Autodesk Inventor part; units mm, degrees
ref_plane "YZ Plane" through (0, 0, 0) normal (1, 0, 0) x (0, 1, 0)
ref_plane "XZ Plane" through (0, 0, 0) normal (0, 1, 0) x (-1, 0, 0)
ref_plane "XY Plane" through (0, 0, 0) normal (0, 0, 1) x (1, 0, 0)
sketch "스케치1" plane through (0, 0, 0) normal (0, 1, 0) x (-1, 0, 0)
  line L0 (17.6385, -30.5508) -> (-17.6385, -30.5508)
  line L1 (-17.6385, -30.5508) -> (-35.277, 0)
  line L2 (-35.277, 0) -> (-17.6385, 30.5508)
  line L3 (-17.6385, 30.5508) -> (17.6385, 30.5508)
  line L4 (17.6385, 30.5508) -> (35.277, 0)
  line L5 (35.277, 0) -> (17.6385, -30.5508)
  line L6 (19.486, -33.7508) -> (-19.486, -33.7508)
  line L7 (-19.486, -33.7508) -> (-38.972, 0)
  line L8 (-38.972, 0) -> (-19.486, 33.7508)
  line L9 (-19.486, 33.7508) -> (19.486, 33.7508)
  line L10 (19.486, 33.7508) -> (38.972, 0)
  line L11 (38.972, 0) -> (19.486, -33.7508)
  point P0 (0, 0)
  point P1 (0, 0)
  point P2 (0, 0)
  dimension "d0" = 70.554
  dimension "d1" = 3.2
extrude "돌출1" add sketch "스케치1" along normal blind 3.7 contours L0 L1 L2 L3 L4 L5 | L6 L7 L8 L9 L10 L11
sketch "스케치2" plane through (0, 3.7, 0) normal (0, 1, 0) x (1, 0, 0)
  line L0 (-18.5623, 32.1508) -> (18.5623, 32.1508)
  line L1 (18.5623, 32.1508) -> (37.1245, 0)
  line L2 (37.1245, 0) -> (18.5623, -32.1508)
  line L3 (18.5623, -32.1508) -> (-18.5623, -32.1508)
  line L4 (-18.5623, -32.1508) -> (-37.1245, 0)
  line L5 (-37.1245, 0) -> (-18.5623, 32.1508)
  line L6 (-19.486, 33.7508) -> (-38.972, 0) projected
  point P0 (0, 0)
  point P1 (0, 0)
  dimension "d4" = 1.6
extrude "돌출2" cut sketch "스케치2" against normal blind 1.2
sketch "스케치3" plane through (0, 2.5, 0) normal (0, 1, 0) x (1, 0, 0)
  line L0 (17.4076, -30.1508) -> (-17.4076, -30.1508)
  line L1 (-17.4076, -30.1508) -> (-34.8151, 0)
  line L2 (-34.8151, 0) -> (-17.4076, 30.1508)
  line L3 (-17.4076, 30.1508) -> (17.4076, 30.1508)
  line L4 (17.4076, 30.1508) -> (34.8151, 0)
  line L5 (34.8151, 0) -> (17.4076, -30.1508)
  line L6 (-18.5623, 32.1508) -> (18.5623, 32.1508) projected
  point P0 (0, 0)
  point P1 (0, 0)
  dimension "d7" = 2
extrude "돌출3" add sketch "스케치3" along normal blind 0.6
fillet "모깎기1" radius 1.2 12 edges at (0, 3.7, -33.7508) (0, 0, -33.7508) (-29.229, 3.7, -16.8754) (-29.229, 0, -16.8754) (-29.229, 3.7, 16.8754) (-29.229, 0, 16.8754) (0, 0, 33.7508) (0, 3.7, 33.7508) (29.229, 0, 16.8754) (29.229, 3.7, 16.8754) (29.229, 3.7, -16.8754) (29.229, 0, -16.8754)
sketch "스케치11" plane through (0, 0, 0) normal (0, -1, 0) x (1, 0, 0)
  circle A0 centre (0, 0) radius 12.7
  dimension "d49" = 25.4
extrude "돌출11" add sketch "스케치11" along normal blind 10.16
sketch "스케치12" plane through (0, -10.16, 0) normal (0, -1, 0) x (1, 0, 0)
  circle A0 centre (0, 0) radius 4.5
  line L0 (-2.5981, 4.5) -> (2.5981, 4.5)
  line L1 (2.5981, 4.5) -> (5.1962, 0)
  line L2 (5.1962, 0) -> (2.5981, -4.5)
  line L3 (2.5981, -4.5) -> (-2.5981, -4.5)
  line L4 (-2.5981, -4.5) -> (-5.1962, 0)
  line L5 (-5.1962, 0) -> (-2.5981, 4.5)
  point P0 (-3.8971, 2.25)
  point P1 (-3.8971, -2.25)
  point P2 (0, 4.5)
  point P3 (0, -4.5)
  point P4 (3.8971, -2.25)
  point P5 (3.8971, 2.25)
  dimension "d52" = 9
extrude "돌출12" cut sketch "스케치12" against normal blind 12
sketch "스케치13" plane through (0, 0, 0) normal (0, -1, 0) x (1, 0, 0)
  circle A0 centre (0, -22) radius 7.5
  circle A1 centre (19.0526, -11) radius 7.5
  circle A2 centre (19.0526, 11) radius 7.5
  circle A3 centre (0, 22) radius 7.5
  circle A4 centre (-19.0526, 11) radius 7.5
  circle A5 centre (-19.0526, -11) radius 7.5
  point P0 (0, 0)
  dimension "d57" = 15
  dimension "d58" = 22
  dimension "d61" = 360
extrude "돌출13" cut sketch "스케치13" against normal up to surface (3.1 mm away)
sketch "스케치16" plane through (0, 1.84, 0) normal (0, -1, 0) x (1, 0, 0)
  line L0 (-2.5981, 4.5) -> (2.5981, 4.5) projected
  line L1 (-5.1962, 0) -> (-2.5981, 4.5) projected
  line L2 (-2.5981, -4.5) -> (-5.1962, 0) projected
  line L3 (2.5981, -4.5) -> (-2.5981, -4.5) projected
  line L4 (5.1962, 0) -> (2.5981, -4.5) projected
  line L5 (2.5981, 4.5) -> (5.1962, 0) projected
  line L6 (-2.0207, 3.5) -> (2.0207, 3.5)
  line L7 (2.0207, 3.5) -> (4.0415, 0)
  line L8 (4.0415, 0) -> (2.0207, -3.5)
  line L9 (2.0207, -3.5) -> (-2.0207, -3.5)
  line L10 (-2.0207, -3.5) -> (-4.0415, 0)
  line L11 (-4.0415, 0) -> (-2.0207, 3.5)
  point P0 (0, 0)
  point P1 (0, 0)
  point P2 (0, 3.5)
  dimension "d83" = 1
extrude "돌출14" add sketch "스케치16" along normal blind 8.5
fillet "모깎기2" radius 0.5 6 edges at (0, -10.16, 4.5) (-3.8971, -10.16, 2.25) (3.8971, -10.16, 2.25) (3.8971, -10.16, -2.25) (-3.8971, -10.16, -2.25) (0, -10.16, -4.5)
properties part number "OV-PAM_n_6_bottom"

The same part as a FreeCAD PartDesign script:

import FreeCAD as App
import Part
import Sketcher
Q = App.Units.Quantity


def edges_at(feature, points):
    """Names of the edges that pass closest to the given points."""
    edges = feature.Shape.Edges
    near = lambda p: min(range(len(edges)), key=lambda i: edges[i].distToShape(Part.Vertex(*p))[0])
    return sorted({f"Edge{near(p) + 1}" for p in points})


def add_polygon(sketch, points):
    """Adds a closed chain of lines whose ends are joined by coincident constraints."""
    first, n = sketch.GeometryCount, len(points)
    for a, b in zip(points, points[1:] + points[:1]):
        sketch.addGeometry(Part.LineSegment(App.Vector(*a, 0), App.Vector(*b, 0)), False)
    for i in range(n):
        sketch.addConstraint(Sketcher.Constraint("Coincident", first + i, 2, first + (i + 1) % n, 1))

doc = App.newDocument("Part")
body = doc.addObject("PartDesign::Body", "Body")

# Sketch on XZ plane
sketch1 = doc.addObject("Sketcher::SketchObject", "Sketch")
body.addObject(sketch1)
sketch1.AttachmentSupport = (doc.XZ_Plane, [""])
sketch1.MapMode = "FlatFace"
add_polygon(sketch1, [(19, -34), (-19, -34), (-39, 0), (-19, 34), (19, 34), (39, 0)])  # lines 0-5
sketch1.addConstraint(Sketcher.Constraint("Horizontal", 0))
sketch1.addConstraint(Sketcher.Constraint("Horizontal", 3))
sketch1.addConstraint(Sketcher.Constraint("Symmetric", 0, 2, 3, 2, -1, 1))
sketch1.addConstraint(Sketcher.Constraint("Symmetric", 1, 2, 4, 2, -1, 1))
sketch1.addConstraint(Sketcher.Constraint("PointOnObject", 1, 2, -1))
sketch1.addConstraint(Sketcher.Constraint("Parallel", 2, 5))
sketch1.addConstraint(Sketcher.Constraint("Vertical", 0, 2, 2, 2))
sketch1.addConstraint(Sketcher.Constraint("Angle", 1, Q("120 deg")))
sketch1.addConstraint(Sketcher.Constraint("DistanceX", 0, 2, 0, 1, Q("38.972 mm")))
sketch1.addConstraint(Sketcher.Constraint("Distance", 1, Q("38.972 mm")))
pad1 = doc.addObject("PartDesign::Pad", "Pad")
body.addObject(pad1)
pad1.Profile = sketch1
pad1.Length = 3.7
pad1.Reversed = True

# Sketch on XZ plane
sketch2 = doc.addObject("Sketcher::SketchObject", "Sketch001")
body.addObject(sketch2)
sketch2.AttachmentSupport = (doc.XZ_Plane, [""])
sketch2.MapMode = "FlatFace"
sketch2.AttachmentOffset = App.Placement(App.Vector(0, 0, -3.7), App.Rotation())
add_polygon(sketch2, [(19, -32), (-19, -32), (-37, 0), (-19, 32), (19, 32), (37, 0)])  # lines 0-5
sketch2.addConstraint(Sketcher.Constraint("Horizontal", 0))
sketch2.addConstraint(Sketcher.Constraint("Horizontal", 3))
sketch2.addConstraint(Sketcher.Constraint("Symmetric", 0, 2, 3, 2, -1, 1))
sketch2.addConstraint(Sketcher.Constraint("Symmetric", 1, 2, 4, 2, -1, 1))
sketch2.addConstraint(Sketcher.Constraint("PointOnObject", 1, 2, -1))
sketch2.addConstraint(Sketcher.Constraint("Parallel", 2, 5))
sketch2.addConstraint(Sketcher.Constraint("Vertical", 0, 2, 2, 2))
sketch2.addConstraint(Sketcher.Constraint("Angle", 1, Q("120 deg")))
sketch2.addConstraint(Sketcher.Constraint("DistanceX", 0, 2, 0, 1, Q("37.1246 mm")))
sketch2.addConstraint(Sketcher.Constraint("DistanceX", 1, 2, 4, 2, Q("74.249 mm")))
pocket1 = doc.addObject("PartDesign::Pocket", "Pocket")
body.addObject(pocket1)
pocket1.Profile = sketch2
pocket1.Length = 1.2
pocket1.Reversed = True

# Sketch on XZ plane
sketch3 = doc.addObject("Sketcher::SketchObject", "Sketch002")
body.addObject(sketch3)
sketch3.AttachmentSupport = (doc.XZ_Plane, [""])
sketch3.MapMode = "FlatFace"
sketch3.AttachmentOffset = App.Placement(App.Vector(0, 0, -2.5), App.Rotation())
add_polygon(sketch3, [(-17, 30), (17, 30), (35, 0), (17, -30), (-17, -30), (-35, 0)])  # lines 0-5
sketch3.addConstraint(Sketcher.Constraint("Horizontal", 0))
sketch3.addConstraint(Sketcher.Constraint("Horizontal", 3))
sketch3.addConstraint(Sketcher.Constraint("Symmetric", 0, 2, 3, 2, -1, 1))
sketch3.addConstraint(Sketcher.Constraint("Symmetric", 1, 2, 4, 2, -1, 1))
sketch3.addConstraint(Sketcher.Constraint("PointOnObject", 1, 2, -1))
sketch3.addConstraint(Sketcher.Constraint("Parallel", 2, 5))
sketch3.addConstraint(Sketcher.Constraint("Vertical", 0, 2, 2, 2))
sketch3.addConstraint(Sketcher.Constraint("Angle", 1, Q("-60 deg")))
sketch3.addConstraint(Sketcher.Constraint("Distance", 1, Q("34.815 mm")))
sketch3.addConstraint(Sketcher.Constraint("DistanceX", 0, 1, 0, 2, Q("34.8152 mm")))
pad2 = doc.addObject("PartDesign::Pad", "Pad001")
body.addObject(pad2)
pad2.Profile = sketch3
pad2.Length = 0.6
pad2.Reversed = True
doc.recompute()

fillet = doc.addObject("PartDesign::Fillet", "Fillet")
body.addObject(fillet)
fillet.Base = (pad2, edges_at(pad2, [
    (0, 3.7, -33.751),
    (0, 0, -33.751),
    (-29.229, 3.7, -16.875),
    (-29.229, 0, -16.875),
    (-29.229, 3.7, 16.875),
    (-29.229, 0, 16.875),
    (0, 0, 33.751),
    (0, 3.7, 33.751),
    (29.229, 0, 16.875),
    (29.229, 3.7, 16.875),
    (29.229, 3.7, -16.875),
    (29.229, 0, -16.875),
]))
fillet.Radius = 1.2

# Sketch on XZ plane
sketch4 = doc.addObject("Sketcher::SketchObject", "Sketch003")
body.addObject(sketch4)
sketch4.AttachmentSupport = (doc.XZ_Plane, [""])
sketch4.MapMode = "FlatFace"
sketch4.addGeometry(Part.Circle(App.Vector(0, 0, 0), App.Vector(0, 0, 1), 13), False)
sketch4.addConstraint(Sketcher.Constraint("Coincident", 0, 3, -1, 1))
sketch4.addConstraint(Sketcher.Constraint("Diameter", 0, Q("25.4 mm")))
pad3 = doc.addObject("PartDesign::Pad", "Pad002")
body.addObject(pad3)
pad3.Profile = sketch4
pad3.Length = 10.16

# Sketch on XZ plane
sketch5 = doc.addObject("Sketcher::SketchObject", "Sketch004")
body.addObject(sketch5)
sketch5.AttachmentSupport = (doc.XZ_Plane, [""])
sketch5.MapMode = "FlatFace"
sketch5.AttachmentOffset = App.Placement(App.Vector(0, 0, 10.16), App.Rotation())
add_polygon(sketch5, [(5, 0), (3, 4), (-3, 4), (-5, 0), (-3, -4), (3, -4)])  # lines 0-5
sketch5.addConstraint(Sketcher.Constraint("Horizontal", 1))
sketch5.addConstraint(Sketcher.Constraint("Horizontal", 4))
sketch5.addConstraint(Sketcher.Constraint("Symmetric", 0, 2, 3, 2, -1, 1))
sketch5.addConstraint(Sketcher.Constraint("Symmetric", 2, 2, 5, 2, -1, 1))
sketch5.addConstraint(Sketcher.Constraint("PointOnObject", 2, 2, -1))
sketch5.addConstraint(Sketcher.Constraint("Parallel", 2, 5))
sketch5.addConstraint(Sketcher.Constraint("Vertical", 1, 2, 3, 2))
sketch5.addConstraint(Sketcher.Constraint("DistanceY", 3, 2, 1, 2, Q("9 mm")))
sketch5.addConstraint(Sketcher.Constraint("Angle", 0, Q("120.0002 deg")))
sketch5.addConstraint(Sketcher.Constraint("DistanceX", 1, 2, 1, 1, Q("5.1962 mm")))
pocket2 = doc.addObject("PartDesign::Pocket", "Pocket001")
body.addObject(pocket2)
pocket2.Profile = sketch5
pocket2.Length = 12

# Sketch on XZ plane
sketch6 = doc.addObject("Sketcher::SketchObject", "Sketch005")
body.addObject(sketch6)
sketch6.AttachmentSupport = (doc.XZ_Plane, [""])
sketch6.MapMode = "FlatFace"
sketch6.addGeometry(Part.Circle(App.Vector(0, -22, 0), App.Vector(0, 0, 1), 8), False)
sketch6.addGeometry(Part.Circle(App.Vector(19, -11, 0), App.Vector(0, 0, 1), 8), False)
sketch6.addGeometry(Part.Circle(App.Vector(19, 11, 0), App.Vector(0, 0, 1), 8), False)
sketch6.addGeometry(Part.Circle(App.Vector(0, 22, 0), App.Vector(0, 0, 1), 8), False)
sketch6.addGeometry(Part.Circle(App.Vector(-19, 11, 0), App.Vector(0, 0, 1), 8), False)
sketch6.addGeometry(Part.Circle(App.Vector(-19, -11, 0), App.Vector(0, 0, 1), 8), False)
sketch6.addConstraint(Sketcher.Constraint("Equal", 0, 1))
sketch6.addConstraint(Sketcher.Constraint("Equal", 1, 2))
sketch6.addConstraint(Sketcher.Constraint("Equal", 2, 3))
sketch6.addConstraint(Sketcher.Constraint("Equal", 3, 4))
sketch6.addConstraint(Sketcher.Constraint("Equal", 4, 5))
sketch6.addConstraint(Sketcher.Constraint("Symmetric", 0, 3, 3, 3, -1, 1))
sketch6.addConstraint(Sketcher.Constraint("Symmetric", 1, 3, 4, 3, -1, 1))
sketch6.addConstraint(Sketcher.Constraint("Symmetric", 2, 3, 5, 3, -1, 1))
sketch6.addConstraint(Sketcher.Constraint("Symmetric", 2, 3, 4, 3, -2))
sketch6.addConstraint(Sketcher.Constraint("PointOnObject", 0, 3, -2))
sketch6.addConstraint(Sketcher.Constraint("Diameter", 0, Q("15 mm")))
sketch6.addConstraint(Sketcher.Constraint("DistanceY", 0, 3, -1, 1, Q("22 mm")))
sketch6.addConstraint(Sketcher.Constraint("DistanceY", 1, 3, 2, 3, Q("22 mm")))
sketch6.addConstraint(Sketcher.Constraint("DistanceX", -1, 1, 1, 3, Q("19.0526 mm")))
pocket3 = doc.addObject("PartDesign::Pocket", "Pocket002")
body.addObject(pocket3)
pocket3.Profile = sketch6
pocket3.Length = 3.1

# Sketch on XZ plane
sketch7 = doc.addObject("Sketcher::SketchObject", "Sketch006")
body.addObject(sketch7)
sketch7.AttachmentSupport = (doc.XZ_Plane, [""])
sketch7.MapMode = "FlatFace"
sketch7.AttachmentOffset = App.Placement(App.Vector(0, 0, -1.84), App.Rotation())
add_polygon(sketch7, [(2.6, 4.5), (-2.6, 4.5), (-5.2, 0), (-2.6, -4.5), (2.6, -4.5), (5.2, 0)])  # lines 0-5
add_polygon(sketch7, [(-4, 0), (-2, 3.5), (2, 3.5), (4, 0), (2, -3.5), (-2, -3.5)])  # lines 6-11
sketch7.addConstraint(Sketcher.Constraint("Horizontal", 0))
sketch7.addConstraint(Sketcher.Constraint("Horizontal", 3))
sketch7.addConstraint(Sketcher.Constraint("Horizontal", 7))
sketch7.addConstraint(Sketcher.Constraint("Horizontal", 10))
sketch7.addConstraint(Sketcher.Constraint("Symmetric", 0, 2, 3, 2, -1, 1))
sketch7.addConstraint(Sketcher.Constraint("Symmetric", 1, 2, 4, 2, -1, 1))
sketch7.addConstraint(Sketcher.Constraint("Symmetric", 6, 2, 9, 2, -1, 1))
sketch7.addConstraint(Sketcher.Constraint("Symmetric", 8, 2, 11, 2, -1, 1))
sketch7.addConstraint(Sketcher.Constraint("PointOnObject", 1, 2, -1))
sketch7.addConstraint(Sketcher.Constraint("PointOnObject", 8, 2, -1))
sketch7.addConstraint(Sketcher.Constraint("Parallel", 2, 5))
sketch7.addConstraint(Sketcher.Constraint("Parallel", 4, 6))
sketch7.addConstraint(Sketcher.Constraint("Parallel", 5, 8))
sketch7.addConstraint(Sketcher.Constraint("Parallel", 8, 11))
sketch7.addConstraint(Sketcher.Constraint("Vertical", 0, 2, 2, 2))
sketch7.addConstraint(Sketcher.Constraint("DistanceY", 6, 2, 0, 2, Q("1 mm")))
sketch7.addConstraint(Sketcher.Constraint("Angle", 1, Q("-120.0002 deg")))
sketch7.addConstraint(Sketcher.Constraint("DistanceY", 2, 2, 0, 2, Q("9 mm")))
sketch7.addConstraint(Sketcher.Constraint("DistanceX", 0, 2, 0, 1, Q("5.1962 mm")))
sketch7.addConstraint(Sketcher.Constraint("DistanceX", 7, 1, 7, 2, Q("4.0414 mm")))
pad4 = doc.addObject("PartDesign::Pad", "Pad003")
body.addObject(pad4)
pad4.Profile = sketch7
pad4.Length = 8.5
doc.recompute()

fillet2 = doc.addObject("PartDesign::Fillet", "Fillet001")
body.addObject(fillet2)
fillet2.Base = (pad4, edges_at(pad4, [
    (0, -10.16, 4.5),
    (-3.897, -10.16, 2.25),
    (3.897, -10.16, 2.25),
    (3.897, -10.16, -2.25),
    (-3.897, -10.16, -2.25),
    (0, -10.16, -4.5),
]))
fillet2.Radius = 0.5

doc.recompute()
